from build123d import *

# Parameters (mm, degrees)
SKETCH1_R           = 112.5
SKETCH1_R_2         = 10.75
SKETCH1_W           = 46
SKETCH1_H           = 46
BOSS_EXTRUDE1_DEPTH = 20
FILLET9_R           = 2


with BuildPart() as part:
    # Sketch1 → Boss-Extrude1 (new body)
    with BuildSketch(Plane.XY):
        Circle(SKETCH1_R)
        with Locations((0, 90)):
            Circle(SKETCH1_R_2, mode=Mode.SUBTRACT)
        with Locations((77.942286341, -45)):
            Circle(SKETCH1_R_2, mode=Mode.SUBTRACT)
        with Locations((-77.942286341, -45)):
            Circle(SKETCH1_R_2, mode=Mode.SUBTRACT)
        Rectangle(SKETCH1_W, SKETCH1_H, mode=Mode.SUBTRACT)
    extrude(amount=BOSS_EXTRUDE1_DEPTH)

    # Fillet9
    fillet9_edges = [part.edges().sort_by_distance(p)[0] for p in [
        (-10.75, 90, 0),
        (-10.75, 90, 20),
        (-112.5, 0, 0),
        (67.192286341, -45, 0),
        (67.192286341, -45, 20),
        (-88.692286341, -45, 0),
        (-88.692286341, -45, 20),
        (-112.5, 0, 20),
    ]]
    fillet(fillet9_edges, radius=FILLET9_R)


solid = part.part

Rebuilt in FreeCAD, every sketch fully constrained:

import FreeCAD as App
import Part
import Sketcher
Q = App.Units.Quantity


def edges_at(feature, points):
    """Names of the edges that pass closest to the given points."""
    edges = feature.Shape.Edges
    near = lambda p: min(range(len(edges)), key=lambda i: edges[i].distToShape(Part.Vertex(*p))[0])
    return sorted({f"Edge{near(p) + 1}" for p in points})

doc = App.newDocument("Part")
body = doc.addObject("PartDesign::Body", "Body")

# Sketch on XY plane
sketch1 = body.newObject("Sketcher::SketchObject", "Sketch")
sketch1.AttachmentSupport = (doc.getObject("XY_Plane"), [""])
sketch1.MapMode = "FlatFace"
sketch1.addGeometry(Part.Circle(App.Vector(0, 0, 0), App.Vector(0, 0, 1), 112.5), False)
sketch1.addGeometry(Part.Circle(App.Vector(-77.942286, -45, 0), App.Vector(0, 0, 1), 10.75), False)
sketch1.addGeometry(Part.Circle(App.Vector(77.942286, -45, 0), App.Vector(0, 0, 1), 10.75), False)
sketch1.addGeometry(Part.LineSegment(App.Vector(23, -23, 0), App.Vector(-23, -23, 0)), False)
sketch1.addGeometry(Part.LineSegment(App.Vector(-23, -23, 0), App.Vector(-23, 23, 0)), False)
sketch1.addGeometry(Part.LineSegment(App.Vector(-23, 23, 0), App.Vector(23, 23, 0)), False)
sketch1.addGeometry(Part.LineSegment(App.Vector(23, 23, 0), App.Vector(23, -23, 0)), False)
sketch1.addGeometry(Part.Circle(App.Vector(0, 90, 0), App.Vector(0, 0, 1), 10.75), False)
sketch1.addConstraint(Sketcher.Constraint("Coincident", 3, 2, 4, 1))
sketch1.addConstraint(Sketcher.Constraint("Coincident", 4, 2, 5, 1))
sketch1.addConstraint(Sketcher.Constraint("Coincident", 5, 2, 6, 1))
sketch1.addConstraint(Sketcher.Constraint("Coincident", 6, 2, 3, 1))
sketch1.addConstraint(Sketcher.Constraint("Horizontal", 3))
sketch1.addConstraint(Sketcher.Constraint("Vertical", 4))
sketch1.addConstraint(Sketcher.Constraint("Horizontal", 5))
sketch1.addConstraint(Sketcher.Constraint("Vertical", 6))
sketch1.addConstraint(Sketcher.Constraint("Coincident", 0, 3, -1, 1))
sketch1.addConstraint(Sketcher.Constraint("Equal", 1, 2))
sketch1.addConstraint(Sketcher.Constraint("Equal", 2, 7))
sketch1.addConstraint(Sketcher.Constraint("Symmetric", 3, 2, 5, 2, -1, 1))
sketch1.addConstraint(Sketcher.Constraint("Symmetric", 1, 3, 2, 3, -2))
sketch1.addConstraint(Sketcher.Constraint("PointOnObject", 7, 3, -2))
sketch1.addConstraint(Sketcher.Constraint("Equal", 5, 4))
sketch1.addConstraint(Sketcher.Constraint("Diameter", 0, Q("225 mm")))
sketch1.addConstraint(Sketcher.Constraint("Diameter", 1, Q("21.5 mm")))
sketch1.addConstraint(Sketcher.Constraint("DistanceX", 3, 2, 3, 1, Q("46 mm")))
sketch1.addConstraint(Sketcher.Constraint("DistanceY", 1, 3, -1, 1, Q("45 mm")))
sketch1.addConstraint(Sketcher.Constraint("DistanceY", -1, 1, 7, 3, Q("90 mm")))
sketch1.addConstraint(Sketcher.Constraint("DistanceX", 1, 3, -1, 1, Q("77.942286 mm")))
pad1 = body.newObject("PartDesign::Pad", "Pad")
pad1.Profile = sketch1
pad1.Length = 20
doc.recompute()

fillet = body.newObject("PartDesign::Fillet", "Fillet")
fillet.Base = (pad1, edges_at(pad1, [
    (-10.75, 90, 0),
    (-10.75, 90, 20),
    (-112.5, 0, 0),
    (67.192, -45, 0),
    (67.192, -45, 20),
    (-88.692, -45, 0),
    (-88.692, -45, 20),
    (-112.5, 0, 20),
]))
fillet.Radius = 2

doc.recompute()
